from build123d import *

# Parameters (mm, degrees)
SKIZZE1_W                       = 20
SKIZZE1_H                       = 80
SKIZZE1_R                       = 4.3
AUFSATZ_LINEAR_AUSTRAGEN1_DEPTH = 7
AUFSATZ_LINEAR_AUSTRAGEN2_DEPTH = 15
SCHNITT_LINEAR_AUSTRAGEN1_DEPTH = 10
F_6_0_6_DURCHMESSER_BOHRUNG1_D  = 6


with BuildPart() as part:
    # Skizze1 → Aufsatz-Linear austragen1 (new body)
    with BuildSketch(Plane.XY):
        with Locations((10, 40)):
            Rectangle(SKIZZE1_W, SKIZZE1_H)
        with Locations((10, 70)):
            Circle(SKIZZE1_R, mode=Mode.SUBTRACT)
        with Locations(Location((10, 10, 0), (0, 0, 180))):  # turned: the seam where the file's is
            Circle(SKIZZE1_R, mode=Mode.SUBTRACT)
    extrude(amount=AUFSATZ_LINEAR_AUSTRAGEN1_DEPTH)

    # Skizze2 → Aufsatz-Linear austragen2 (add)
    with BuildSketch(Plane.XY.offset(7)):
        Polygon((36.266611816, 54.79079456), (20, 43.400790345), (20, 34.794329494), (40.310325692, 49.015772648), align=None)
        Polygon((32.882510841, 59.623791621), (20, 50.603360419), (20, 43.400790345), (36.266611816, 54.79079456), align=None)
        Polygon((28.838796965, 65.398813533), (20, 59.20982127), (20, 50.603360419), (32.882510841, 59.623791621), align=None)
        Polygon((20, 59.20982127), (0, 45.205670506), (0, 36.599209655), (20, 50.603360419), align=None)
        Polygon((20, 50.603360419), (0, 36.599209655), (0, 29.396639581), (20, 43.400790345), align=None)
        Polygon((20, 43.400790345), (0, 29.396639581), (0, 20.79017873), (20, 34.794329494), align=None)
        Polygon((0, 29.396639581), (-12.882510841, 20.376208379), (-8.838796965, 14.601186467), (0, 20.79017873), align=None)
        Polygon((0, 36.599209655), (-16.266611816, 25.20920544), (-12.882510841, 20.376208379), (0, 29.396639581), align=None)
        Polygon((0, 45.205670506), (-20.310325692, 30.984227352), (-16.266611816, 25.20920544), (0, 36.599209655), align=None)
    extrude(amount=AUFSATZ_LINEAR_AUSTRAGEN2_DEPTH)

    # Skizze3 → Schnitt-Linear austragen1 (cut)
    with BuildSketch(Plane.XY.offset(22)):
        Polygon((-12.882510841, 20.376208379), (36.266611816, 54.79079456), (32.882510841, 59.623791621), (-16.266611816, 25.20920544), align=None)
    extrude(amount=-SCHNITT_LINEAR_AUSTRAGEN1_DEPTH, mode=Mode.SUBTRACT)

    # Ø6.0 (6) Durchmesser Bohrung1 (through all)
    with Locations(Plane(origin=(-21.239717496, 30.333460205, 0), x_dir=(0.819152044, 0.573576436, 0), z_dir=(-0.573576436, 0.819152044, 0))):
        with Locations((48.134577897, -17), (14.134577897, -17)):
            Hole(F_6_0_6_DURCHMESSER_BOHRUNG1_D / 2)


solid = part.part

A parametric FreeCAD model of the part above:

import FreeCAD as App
import Part
import Sketcher

V = App.Vector
Q = App.Units.Quantity

doc = App.newDocument("Part")
params = doc.addObject("Spreadsheet::Sheet", "Params")
for row, (alias, value) in enumerate([
    ("sketch1_diameter", "8.6 mm"),
    ("sketch1_width", "20 mm"),
    ("sketch1_height", "80 mm"),
    ("pad1_length", "7 mm"),
    ("sketch2_length", "5.9 mm"),
    ("sketch2_length2", "7.05 mm"),
    ("pad2_length", "15 mm"),
    ("sketch3_length", "60 mm"),
    ("sketch3_length2", "5.9 mm"),
    ("pocket1_length", "10 mm"),
    ("sketch4_diameter", "6 mm"),
    ("hole_diameter", "6 mm"),
], start=1):
    params.set(f"A{row}", alias)
    params.set(f"B{row}", "=" + value)
    params.setAlias(f"B{row}", alias)

body = doc.addObject("PartDesign::Body", "Body")

# Sketch on XY plane
sketch1 = doc.addObject("Sketcher::SketchObject", "Sketch")
body.addObject(sketch1)
sketch1.AttachmentSupport = (doc.XY_Plane, [""])
sketch1.MapMode = "FlatFace"
sketch1.addGeometry(Part.LineSegment(V(0, 80, 0), V(0, 0, 0)), False)
sketch1.addGeometry(Part.LineSegment(V(0, 0, 0), V(20, 0, 0)), False)
sketch1.addGeometry(Part.LineSegment(V(20, 0, 0), V(20, 80, 0)), False)
sketch1.addGeometry(Part.LineSegment(V(20, 80, 0), V(0, 80, 0)), False)
sketch1.addGeometry(Part.Circle(V(10, 10, 0), V(0, 0, 1), 4.3), False)
sketch1.addGeometry(Part.Circle(V(10, 70, 0), V(0, 0, 1), 4.3), False)
sketch1.addConstraint(Sketcher.Constraint("Coincident", 0, 2, 1, 1))
sketch1.addConstraint(Sketcher.Constraint("Coincident", 1, 2, 2, 1))
sketch1.addConstraint(Sketcher.Constraint("Coincident", 2, 2, 3, 1))
sketch1.addConstraint(Sketcher.Constraint("Coincident", 3, 2, 0, 1))
sketch1.addConstraint(Sketcher.Constraint("Vertical", 0))
sketch1.addConstraint(Sketcher.Constraint("Horizontal", 1))
sketch1.addConstraint(Sketcher.Constraint("Vertical", 2))
sketch1.addConstraint(Sketcher.Constraint("Horizontal", 3))
sketch1.addConstraint(Sketcher.Constraint("Coincident", 0, 2, -1, 1))
sketch1.addConstraint(Sketcher.Constraint("Equal", 4, 5))
sketch1.addConstraint(Sketcher.Constraint("Vertical", 4, 3, 5, 3))
sketch1.addConstraint(Sketcher.Constraint("Diameter", 4, 8.6))
sketch1.addConstraint(Sketcher.Constraint("DistanceX", 1, 1, 1, 2, 20.0))
sketch1.addConstraint(Sketcher.Constraint("DistanceY", 0, 2, 0, 1, 80.0))
sketch1.addConstraint(Sketcher.Constraint("DistanceX", -1, 1, 4, 3, 10.0))
sketch1.addConstraint(Sketcher.Constraint("DistanceY", -1, 1, 4, 3, 10.0))
sketch1.addConstraint(Sketcher.Constraint("DistanceY", -1, 1, 5, 3, 70.0))
sketch1.setExpression("Constraints[11]", "Params.sketch1_diameter")
sketch1.setExpression("Constraints[12]", "Params.sketch1_width")
sketch1.setExpression("Constraints[13]", "Params.sketch1_height")
pad1 = doc.addObject("PartDesign::Pad", "Pad")
body.addObject(pad1)
pad1.Profile = sketch1
pad1.setExpression("Length", "Params.pad1_length")

# Sketch on XY plane
sketch2 = doc.addObject("Sketcher::SketchObject", "Sketch001")
body.addObject(sketch2)
sketch2.AttachmentSupport = (doc.XY_Plane, [""])
sketch2.MapMode = "FlatFace"
sketch2.AttachmentOffset = App.Placement(V(0, 0, 7), App.Rotation())
sketch2.addGeometry(Part.LineSegment(V(20, 35, 0), V(40, 49, 0)), False)
sketch2.addGeometry(Part.LineSegment(V(40, 49, 0), V(36, 55, 0)), False)
sketch2.addGeometry(Part.LineSegment(V(36, 55, 0), V(33, 60, 0)), False)
sketch2.addGeometry(Part.LineSegment(V(33, 60, 0), V(29, 65, 0)), False)
sketch2.addGeometry(Part.LineSegment(V(29, 65, 0), V(20, 59, 0)), False)
sketch2.addGeometry(Part.LineSegment(V(20, 59, 0), V(0, 45, 0)), False)
sketch2.addGeometry(Part.LineSegment(V(0, 45, 0), V(-20, 31, 0)), False)
sketch2.addGeometry(Part.LineSegment(V(-20, 31, 0), V(-16, 25, 0)), False)
sketch2.addGeometry(Part.LineSegment(V(-16, 25, 0), V(-13, 20, 0)), False)
sketch2.addGeometry(Part.LineSegment(V(-13, 20, 0), V(-9, 15, 0)), False)
sketch2.addGeometry(Part.LineSegment(V(-9, 15, 0), V(0, 21, 0)), False)
sketch2.addGeometry(Part.LineSegment(V(0, 21, 0), V(20, 35, 0)), False)
sketch2.addConstraint(Sketcher.Constraint("Coincident", 0, 2, 1, 1))
sketch2.addConstraint(Sketcher.Constraint("Coincident", 1, 2, 2, 1))
sketch2.addConstraint(Sketcher.Constraint("Coincident", 2, 2, 3, 1))
sketch2.addConstraint(Sketcher.Constraint("Coincident", 3, 2, 4, 1))
sketch2.addConstraint(Sketcher.Constraint("Coincident", 4, 2, 5, 1))
sketch2.addConstraint(Sketcher.Constraint("Coincident", 5, 2, 6, 1))
sketch2.addConstraint(Sketcher.Constraint("Coincident", 6, 2, 7, 1))
sketch2.addConstraint(Sketcher.Constraint("Coincident", 7, 2, 8, 1))
sketch2.addConstraint(Sketcher.Constraint("Coincident", 8, 2, 9, 1))
sketch2.addConstraint(Sketcher.Constraint("Coincident", 9, 2, 10, 1))
sketch2.addConstraint(Sketcher.Constraint("Coincident", 10, 2, 11, 1))
sketch2.addConstraint(Sketcher.Constraint("Coincident", 11, 2, 0, 1))
sketch2.addConstraint(Sketcher.Constraint("PointOnObject", 5, 2, -2))
sketch2.addConstraint(Sketcher.Constraint("PointOnObject", 10, 2, -2))
sketch2.addConstraint(Sketcher.Constraint("Perpendicular", 0, 1))
sketch2.addConstraint(Sketcher.Constraint("Parallel", 1, 2))
sketch2.addConstraint(Sketcher.Constraint("Parallel", 2, 3))
sketch2.addConstraint(Sketcher.Constraint("Perpendicular", 3, 4))
sketch2.addConstraint(Sketcher.Constraint("Parallel", 4, 5))
sketch2.addConstraint(Sketcher.Constraint("Parallel", 5, 6))
sketch2.addConstraint(Sketcher.Constraint("Perpendicular", 6, 7))
sketch2.addConstraint(Sketcher.Constraint("Parallel", 7, 8))
sketch2.addConstraint(Sketcher.Constraint("Parallel", 8, 9))
sketch2.addConstraint(Sketcher.Constraint("Perpendicular", 9, 10))
sketch2.addConstraint(Sketcher.Constraint("Parallel", 10, 11))
sketch2.addConstraint(Sketcher.Constraint("Vertical", 4, 2, 11, 2))
sketch2.addConstraint(Sketcher.Constraint("Equal", 1, 3))
sketch2.addConstraint(Sketcher.Constraint("Equal", 0, 6))
sketch2.addConstraint(Sketcher.Constraint("Equal", 3, 7))
sketch2.addConstraint(Sketcher.Constraint("Equal", 2, 8))
sketch2.addConstraint(Sketcher.Constraint("Angle", 0, Q("35 deg")))
sketch2.addConstraint(Sketcher.Constraint("DistanceX", -1, 1, 4, 2, 20.0))
sketch2.addConstraint(Sketcher.Constraint("Distance", 2, 5.9))
sketch2.addConstraint(Sketcher.Constraint("Distance", 1, 7.05))
sketch2.addConstraint(Sketcher.Constraint("Distance", 0, 24.794329))
sketch2.addConstraint(Sketcher.Constraint("DistanceY", -1, 1, 2, 2, 59.623792))
sketch2.setExpression("Constraints[32]", "Params.sketch2_length")
sketch2.setExpression("Constraints[33]", "Params.sketch2_length2")
pad2 = doc.addObject("PartDesign::Pad", "Pad001")
body.addObject(pad2)
pad2.Profile = sketch2
pad2.setExpression("Length", "Params.pad2_length")

# Sketch on XY plane
sketch3 = doc.addObject("Sketcher::SketchObject", "Sketch002")
body.addObject(sketch3)
sketch3.AttachmentSupport = (doc.XY_Plane, [""])
sketch3.MapMode = "FlatFace"
sketch3.AttachmentOffset = App.Placement(V(0, 0, 22), App.Rotation())
sketch3.addGeometry(Part.LineSegment(V(-13, 20, 0), V(36, 55, 0)), False)
sketch3.addGeometry(Part.LineSegment(V(36, 55, 0), V(33, 60, 0)), False)
sketch3.addGeometry(Part.LineSegment(V(33, 60, 0), V(-16, 25, 0)), False)
sketch3.addGeometry(Part.LineSegment(V(-16, 25, 0), V(-13, 20, 0)), False)
sketch3.addConstraint(Sketcher.Constraint("Coincident", 0, 2, 1, 1))
sketch3.addConstraint(Sketcher.Constraint("Coincident", 1, 2, 2, 1))
sketch3.addConstraint(Sketcher.Constraint("Coincident", 2, 2, 3, 1))
sketch3.addConstraint(Sketcher.Constraint("Coincident", 3, 2, 0, 1))
sketch3.addConstraint(Sketcher.Constraint("Perpendicular", 0, 1))
sketch3.addConstraint(Sketcher.Constraint("Perpendicular", 1, 2))
sketch3.addConstraint(Sketcher.Constraint("Perpendicular", 2, 3))
sketch3.addConstraint(Sketcher.Constraint("Angle", 0, Q("35 deg")))
sketch3.addConstraint(Sketcher.Constraint("Distance", 0, 60.0))
sketch3.addConstraint(Sketcher.Constraint("Distance", 1, 5.9))
sketch3.addConstraint(Sketcher.Constraint("DistanceX", -1, 1, 0, 2, 36.266612))
sketch3.addConstraint(Sketcher.Constraint("DistanceY", -1, 1, 1, 2, 59.623792))
sketch3.setExpression("Constraints[8]", "Params.sketch3_length")
sketch3.setExpression("Constraints[9]", "Params.sketch3_length2")
pocket1 = doc.addObject("PartDesign::Pocket", "Pocket")
body.addObject(pocket1)
pocket1.Profile = sketch3
pocket1.setExpression("Length", "Params.pocket1_length")

# Sketch on an angled plane
sketch4 = doc.addObject("Sketcher::SketchObject", "Sketch003")
body.addObject(sketch4)
sketch4.Placement = App.Placement(V(-21.239717, 30.33346, 0), App.Rotation(V(0.819152044, 0.573576436, 0), V(0, 0, -0.999999999), V(-0.573576436, 0.819152044, 0), "ZXY"))
sketch4.addGeometry(Part.Circle(V(48.1, -17, 0), V(0, 0, 1), 3), False)
sketch4.addGeometry(Part.Circle(V(14.1, -17, 0), V(0, 0, 1), 3), False)
sketch4.addConstraint(Sketcher.Constraint("Equal", 0, 1))
sketch4.addConstraint(Sketcher.Constraint("Horizontal", 0, 3, 1, 3))
sketch4.addConstraint(Sketcher.Constraint("Diameter", 0, 6.0))
sketch4.addConstraint(Sketcher.Constraint("DistanceY", 0, 3, -1, 1, 17.0))
sketch4.addConstraint(Sketcher.Constraint("DistanceX", 1, 3, 0, 3, 34.0))
sketch4.addConstraint(Sketcher.Constraint("DistanceX", -1, 1, 0, 3, 48.134578))
sketch4.setExpression("Constraints[2]", "Params.sketch4_diameter")
doc.recompute()
hole = doc.addObject("PartDesign::Hole", "Hole")
body.addObject(hole)
hole.Profile = sketch4
hole.ThreadType = "None"
hole.setExpression("Diameter", "Params.hole_diameter")
hole.DepthType = "ThroughAll"

doc.recompute()
